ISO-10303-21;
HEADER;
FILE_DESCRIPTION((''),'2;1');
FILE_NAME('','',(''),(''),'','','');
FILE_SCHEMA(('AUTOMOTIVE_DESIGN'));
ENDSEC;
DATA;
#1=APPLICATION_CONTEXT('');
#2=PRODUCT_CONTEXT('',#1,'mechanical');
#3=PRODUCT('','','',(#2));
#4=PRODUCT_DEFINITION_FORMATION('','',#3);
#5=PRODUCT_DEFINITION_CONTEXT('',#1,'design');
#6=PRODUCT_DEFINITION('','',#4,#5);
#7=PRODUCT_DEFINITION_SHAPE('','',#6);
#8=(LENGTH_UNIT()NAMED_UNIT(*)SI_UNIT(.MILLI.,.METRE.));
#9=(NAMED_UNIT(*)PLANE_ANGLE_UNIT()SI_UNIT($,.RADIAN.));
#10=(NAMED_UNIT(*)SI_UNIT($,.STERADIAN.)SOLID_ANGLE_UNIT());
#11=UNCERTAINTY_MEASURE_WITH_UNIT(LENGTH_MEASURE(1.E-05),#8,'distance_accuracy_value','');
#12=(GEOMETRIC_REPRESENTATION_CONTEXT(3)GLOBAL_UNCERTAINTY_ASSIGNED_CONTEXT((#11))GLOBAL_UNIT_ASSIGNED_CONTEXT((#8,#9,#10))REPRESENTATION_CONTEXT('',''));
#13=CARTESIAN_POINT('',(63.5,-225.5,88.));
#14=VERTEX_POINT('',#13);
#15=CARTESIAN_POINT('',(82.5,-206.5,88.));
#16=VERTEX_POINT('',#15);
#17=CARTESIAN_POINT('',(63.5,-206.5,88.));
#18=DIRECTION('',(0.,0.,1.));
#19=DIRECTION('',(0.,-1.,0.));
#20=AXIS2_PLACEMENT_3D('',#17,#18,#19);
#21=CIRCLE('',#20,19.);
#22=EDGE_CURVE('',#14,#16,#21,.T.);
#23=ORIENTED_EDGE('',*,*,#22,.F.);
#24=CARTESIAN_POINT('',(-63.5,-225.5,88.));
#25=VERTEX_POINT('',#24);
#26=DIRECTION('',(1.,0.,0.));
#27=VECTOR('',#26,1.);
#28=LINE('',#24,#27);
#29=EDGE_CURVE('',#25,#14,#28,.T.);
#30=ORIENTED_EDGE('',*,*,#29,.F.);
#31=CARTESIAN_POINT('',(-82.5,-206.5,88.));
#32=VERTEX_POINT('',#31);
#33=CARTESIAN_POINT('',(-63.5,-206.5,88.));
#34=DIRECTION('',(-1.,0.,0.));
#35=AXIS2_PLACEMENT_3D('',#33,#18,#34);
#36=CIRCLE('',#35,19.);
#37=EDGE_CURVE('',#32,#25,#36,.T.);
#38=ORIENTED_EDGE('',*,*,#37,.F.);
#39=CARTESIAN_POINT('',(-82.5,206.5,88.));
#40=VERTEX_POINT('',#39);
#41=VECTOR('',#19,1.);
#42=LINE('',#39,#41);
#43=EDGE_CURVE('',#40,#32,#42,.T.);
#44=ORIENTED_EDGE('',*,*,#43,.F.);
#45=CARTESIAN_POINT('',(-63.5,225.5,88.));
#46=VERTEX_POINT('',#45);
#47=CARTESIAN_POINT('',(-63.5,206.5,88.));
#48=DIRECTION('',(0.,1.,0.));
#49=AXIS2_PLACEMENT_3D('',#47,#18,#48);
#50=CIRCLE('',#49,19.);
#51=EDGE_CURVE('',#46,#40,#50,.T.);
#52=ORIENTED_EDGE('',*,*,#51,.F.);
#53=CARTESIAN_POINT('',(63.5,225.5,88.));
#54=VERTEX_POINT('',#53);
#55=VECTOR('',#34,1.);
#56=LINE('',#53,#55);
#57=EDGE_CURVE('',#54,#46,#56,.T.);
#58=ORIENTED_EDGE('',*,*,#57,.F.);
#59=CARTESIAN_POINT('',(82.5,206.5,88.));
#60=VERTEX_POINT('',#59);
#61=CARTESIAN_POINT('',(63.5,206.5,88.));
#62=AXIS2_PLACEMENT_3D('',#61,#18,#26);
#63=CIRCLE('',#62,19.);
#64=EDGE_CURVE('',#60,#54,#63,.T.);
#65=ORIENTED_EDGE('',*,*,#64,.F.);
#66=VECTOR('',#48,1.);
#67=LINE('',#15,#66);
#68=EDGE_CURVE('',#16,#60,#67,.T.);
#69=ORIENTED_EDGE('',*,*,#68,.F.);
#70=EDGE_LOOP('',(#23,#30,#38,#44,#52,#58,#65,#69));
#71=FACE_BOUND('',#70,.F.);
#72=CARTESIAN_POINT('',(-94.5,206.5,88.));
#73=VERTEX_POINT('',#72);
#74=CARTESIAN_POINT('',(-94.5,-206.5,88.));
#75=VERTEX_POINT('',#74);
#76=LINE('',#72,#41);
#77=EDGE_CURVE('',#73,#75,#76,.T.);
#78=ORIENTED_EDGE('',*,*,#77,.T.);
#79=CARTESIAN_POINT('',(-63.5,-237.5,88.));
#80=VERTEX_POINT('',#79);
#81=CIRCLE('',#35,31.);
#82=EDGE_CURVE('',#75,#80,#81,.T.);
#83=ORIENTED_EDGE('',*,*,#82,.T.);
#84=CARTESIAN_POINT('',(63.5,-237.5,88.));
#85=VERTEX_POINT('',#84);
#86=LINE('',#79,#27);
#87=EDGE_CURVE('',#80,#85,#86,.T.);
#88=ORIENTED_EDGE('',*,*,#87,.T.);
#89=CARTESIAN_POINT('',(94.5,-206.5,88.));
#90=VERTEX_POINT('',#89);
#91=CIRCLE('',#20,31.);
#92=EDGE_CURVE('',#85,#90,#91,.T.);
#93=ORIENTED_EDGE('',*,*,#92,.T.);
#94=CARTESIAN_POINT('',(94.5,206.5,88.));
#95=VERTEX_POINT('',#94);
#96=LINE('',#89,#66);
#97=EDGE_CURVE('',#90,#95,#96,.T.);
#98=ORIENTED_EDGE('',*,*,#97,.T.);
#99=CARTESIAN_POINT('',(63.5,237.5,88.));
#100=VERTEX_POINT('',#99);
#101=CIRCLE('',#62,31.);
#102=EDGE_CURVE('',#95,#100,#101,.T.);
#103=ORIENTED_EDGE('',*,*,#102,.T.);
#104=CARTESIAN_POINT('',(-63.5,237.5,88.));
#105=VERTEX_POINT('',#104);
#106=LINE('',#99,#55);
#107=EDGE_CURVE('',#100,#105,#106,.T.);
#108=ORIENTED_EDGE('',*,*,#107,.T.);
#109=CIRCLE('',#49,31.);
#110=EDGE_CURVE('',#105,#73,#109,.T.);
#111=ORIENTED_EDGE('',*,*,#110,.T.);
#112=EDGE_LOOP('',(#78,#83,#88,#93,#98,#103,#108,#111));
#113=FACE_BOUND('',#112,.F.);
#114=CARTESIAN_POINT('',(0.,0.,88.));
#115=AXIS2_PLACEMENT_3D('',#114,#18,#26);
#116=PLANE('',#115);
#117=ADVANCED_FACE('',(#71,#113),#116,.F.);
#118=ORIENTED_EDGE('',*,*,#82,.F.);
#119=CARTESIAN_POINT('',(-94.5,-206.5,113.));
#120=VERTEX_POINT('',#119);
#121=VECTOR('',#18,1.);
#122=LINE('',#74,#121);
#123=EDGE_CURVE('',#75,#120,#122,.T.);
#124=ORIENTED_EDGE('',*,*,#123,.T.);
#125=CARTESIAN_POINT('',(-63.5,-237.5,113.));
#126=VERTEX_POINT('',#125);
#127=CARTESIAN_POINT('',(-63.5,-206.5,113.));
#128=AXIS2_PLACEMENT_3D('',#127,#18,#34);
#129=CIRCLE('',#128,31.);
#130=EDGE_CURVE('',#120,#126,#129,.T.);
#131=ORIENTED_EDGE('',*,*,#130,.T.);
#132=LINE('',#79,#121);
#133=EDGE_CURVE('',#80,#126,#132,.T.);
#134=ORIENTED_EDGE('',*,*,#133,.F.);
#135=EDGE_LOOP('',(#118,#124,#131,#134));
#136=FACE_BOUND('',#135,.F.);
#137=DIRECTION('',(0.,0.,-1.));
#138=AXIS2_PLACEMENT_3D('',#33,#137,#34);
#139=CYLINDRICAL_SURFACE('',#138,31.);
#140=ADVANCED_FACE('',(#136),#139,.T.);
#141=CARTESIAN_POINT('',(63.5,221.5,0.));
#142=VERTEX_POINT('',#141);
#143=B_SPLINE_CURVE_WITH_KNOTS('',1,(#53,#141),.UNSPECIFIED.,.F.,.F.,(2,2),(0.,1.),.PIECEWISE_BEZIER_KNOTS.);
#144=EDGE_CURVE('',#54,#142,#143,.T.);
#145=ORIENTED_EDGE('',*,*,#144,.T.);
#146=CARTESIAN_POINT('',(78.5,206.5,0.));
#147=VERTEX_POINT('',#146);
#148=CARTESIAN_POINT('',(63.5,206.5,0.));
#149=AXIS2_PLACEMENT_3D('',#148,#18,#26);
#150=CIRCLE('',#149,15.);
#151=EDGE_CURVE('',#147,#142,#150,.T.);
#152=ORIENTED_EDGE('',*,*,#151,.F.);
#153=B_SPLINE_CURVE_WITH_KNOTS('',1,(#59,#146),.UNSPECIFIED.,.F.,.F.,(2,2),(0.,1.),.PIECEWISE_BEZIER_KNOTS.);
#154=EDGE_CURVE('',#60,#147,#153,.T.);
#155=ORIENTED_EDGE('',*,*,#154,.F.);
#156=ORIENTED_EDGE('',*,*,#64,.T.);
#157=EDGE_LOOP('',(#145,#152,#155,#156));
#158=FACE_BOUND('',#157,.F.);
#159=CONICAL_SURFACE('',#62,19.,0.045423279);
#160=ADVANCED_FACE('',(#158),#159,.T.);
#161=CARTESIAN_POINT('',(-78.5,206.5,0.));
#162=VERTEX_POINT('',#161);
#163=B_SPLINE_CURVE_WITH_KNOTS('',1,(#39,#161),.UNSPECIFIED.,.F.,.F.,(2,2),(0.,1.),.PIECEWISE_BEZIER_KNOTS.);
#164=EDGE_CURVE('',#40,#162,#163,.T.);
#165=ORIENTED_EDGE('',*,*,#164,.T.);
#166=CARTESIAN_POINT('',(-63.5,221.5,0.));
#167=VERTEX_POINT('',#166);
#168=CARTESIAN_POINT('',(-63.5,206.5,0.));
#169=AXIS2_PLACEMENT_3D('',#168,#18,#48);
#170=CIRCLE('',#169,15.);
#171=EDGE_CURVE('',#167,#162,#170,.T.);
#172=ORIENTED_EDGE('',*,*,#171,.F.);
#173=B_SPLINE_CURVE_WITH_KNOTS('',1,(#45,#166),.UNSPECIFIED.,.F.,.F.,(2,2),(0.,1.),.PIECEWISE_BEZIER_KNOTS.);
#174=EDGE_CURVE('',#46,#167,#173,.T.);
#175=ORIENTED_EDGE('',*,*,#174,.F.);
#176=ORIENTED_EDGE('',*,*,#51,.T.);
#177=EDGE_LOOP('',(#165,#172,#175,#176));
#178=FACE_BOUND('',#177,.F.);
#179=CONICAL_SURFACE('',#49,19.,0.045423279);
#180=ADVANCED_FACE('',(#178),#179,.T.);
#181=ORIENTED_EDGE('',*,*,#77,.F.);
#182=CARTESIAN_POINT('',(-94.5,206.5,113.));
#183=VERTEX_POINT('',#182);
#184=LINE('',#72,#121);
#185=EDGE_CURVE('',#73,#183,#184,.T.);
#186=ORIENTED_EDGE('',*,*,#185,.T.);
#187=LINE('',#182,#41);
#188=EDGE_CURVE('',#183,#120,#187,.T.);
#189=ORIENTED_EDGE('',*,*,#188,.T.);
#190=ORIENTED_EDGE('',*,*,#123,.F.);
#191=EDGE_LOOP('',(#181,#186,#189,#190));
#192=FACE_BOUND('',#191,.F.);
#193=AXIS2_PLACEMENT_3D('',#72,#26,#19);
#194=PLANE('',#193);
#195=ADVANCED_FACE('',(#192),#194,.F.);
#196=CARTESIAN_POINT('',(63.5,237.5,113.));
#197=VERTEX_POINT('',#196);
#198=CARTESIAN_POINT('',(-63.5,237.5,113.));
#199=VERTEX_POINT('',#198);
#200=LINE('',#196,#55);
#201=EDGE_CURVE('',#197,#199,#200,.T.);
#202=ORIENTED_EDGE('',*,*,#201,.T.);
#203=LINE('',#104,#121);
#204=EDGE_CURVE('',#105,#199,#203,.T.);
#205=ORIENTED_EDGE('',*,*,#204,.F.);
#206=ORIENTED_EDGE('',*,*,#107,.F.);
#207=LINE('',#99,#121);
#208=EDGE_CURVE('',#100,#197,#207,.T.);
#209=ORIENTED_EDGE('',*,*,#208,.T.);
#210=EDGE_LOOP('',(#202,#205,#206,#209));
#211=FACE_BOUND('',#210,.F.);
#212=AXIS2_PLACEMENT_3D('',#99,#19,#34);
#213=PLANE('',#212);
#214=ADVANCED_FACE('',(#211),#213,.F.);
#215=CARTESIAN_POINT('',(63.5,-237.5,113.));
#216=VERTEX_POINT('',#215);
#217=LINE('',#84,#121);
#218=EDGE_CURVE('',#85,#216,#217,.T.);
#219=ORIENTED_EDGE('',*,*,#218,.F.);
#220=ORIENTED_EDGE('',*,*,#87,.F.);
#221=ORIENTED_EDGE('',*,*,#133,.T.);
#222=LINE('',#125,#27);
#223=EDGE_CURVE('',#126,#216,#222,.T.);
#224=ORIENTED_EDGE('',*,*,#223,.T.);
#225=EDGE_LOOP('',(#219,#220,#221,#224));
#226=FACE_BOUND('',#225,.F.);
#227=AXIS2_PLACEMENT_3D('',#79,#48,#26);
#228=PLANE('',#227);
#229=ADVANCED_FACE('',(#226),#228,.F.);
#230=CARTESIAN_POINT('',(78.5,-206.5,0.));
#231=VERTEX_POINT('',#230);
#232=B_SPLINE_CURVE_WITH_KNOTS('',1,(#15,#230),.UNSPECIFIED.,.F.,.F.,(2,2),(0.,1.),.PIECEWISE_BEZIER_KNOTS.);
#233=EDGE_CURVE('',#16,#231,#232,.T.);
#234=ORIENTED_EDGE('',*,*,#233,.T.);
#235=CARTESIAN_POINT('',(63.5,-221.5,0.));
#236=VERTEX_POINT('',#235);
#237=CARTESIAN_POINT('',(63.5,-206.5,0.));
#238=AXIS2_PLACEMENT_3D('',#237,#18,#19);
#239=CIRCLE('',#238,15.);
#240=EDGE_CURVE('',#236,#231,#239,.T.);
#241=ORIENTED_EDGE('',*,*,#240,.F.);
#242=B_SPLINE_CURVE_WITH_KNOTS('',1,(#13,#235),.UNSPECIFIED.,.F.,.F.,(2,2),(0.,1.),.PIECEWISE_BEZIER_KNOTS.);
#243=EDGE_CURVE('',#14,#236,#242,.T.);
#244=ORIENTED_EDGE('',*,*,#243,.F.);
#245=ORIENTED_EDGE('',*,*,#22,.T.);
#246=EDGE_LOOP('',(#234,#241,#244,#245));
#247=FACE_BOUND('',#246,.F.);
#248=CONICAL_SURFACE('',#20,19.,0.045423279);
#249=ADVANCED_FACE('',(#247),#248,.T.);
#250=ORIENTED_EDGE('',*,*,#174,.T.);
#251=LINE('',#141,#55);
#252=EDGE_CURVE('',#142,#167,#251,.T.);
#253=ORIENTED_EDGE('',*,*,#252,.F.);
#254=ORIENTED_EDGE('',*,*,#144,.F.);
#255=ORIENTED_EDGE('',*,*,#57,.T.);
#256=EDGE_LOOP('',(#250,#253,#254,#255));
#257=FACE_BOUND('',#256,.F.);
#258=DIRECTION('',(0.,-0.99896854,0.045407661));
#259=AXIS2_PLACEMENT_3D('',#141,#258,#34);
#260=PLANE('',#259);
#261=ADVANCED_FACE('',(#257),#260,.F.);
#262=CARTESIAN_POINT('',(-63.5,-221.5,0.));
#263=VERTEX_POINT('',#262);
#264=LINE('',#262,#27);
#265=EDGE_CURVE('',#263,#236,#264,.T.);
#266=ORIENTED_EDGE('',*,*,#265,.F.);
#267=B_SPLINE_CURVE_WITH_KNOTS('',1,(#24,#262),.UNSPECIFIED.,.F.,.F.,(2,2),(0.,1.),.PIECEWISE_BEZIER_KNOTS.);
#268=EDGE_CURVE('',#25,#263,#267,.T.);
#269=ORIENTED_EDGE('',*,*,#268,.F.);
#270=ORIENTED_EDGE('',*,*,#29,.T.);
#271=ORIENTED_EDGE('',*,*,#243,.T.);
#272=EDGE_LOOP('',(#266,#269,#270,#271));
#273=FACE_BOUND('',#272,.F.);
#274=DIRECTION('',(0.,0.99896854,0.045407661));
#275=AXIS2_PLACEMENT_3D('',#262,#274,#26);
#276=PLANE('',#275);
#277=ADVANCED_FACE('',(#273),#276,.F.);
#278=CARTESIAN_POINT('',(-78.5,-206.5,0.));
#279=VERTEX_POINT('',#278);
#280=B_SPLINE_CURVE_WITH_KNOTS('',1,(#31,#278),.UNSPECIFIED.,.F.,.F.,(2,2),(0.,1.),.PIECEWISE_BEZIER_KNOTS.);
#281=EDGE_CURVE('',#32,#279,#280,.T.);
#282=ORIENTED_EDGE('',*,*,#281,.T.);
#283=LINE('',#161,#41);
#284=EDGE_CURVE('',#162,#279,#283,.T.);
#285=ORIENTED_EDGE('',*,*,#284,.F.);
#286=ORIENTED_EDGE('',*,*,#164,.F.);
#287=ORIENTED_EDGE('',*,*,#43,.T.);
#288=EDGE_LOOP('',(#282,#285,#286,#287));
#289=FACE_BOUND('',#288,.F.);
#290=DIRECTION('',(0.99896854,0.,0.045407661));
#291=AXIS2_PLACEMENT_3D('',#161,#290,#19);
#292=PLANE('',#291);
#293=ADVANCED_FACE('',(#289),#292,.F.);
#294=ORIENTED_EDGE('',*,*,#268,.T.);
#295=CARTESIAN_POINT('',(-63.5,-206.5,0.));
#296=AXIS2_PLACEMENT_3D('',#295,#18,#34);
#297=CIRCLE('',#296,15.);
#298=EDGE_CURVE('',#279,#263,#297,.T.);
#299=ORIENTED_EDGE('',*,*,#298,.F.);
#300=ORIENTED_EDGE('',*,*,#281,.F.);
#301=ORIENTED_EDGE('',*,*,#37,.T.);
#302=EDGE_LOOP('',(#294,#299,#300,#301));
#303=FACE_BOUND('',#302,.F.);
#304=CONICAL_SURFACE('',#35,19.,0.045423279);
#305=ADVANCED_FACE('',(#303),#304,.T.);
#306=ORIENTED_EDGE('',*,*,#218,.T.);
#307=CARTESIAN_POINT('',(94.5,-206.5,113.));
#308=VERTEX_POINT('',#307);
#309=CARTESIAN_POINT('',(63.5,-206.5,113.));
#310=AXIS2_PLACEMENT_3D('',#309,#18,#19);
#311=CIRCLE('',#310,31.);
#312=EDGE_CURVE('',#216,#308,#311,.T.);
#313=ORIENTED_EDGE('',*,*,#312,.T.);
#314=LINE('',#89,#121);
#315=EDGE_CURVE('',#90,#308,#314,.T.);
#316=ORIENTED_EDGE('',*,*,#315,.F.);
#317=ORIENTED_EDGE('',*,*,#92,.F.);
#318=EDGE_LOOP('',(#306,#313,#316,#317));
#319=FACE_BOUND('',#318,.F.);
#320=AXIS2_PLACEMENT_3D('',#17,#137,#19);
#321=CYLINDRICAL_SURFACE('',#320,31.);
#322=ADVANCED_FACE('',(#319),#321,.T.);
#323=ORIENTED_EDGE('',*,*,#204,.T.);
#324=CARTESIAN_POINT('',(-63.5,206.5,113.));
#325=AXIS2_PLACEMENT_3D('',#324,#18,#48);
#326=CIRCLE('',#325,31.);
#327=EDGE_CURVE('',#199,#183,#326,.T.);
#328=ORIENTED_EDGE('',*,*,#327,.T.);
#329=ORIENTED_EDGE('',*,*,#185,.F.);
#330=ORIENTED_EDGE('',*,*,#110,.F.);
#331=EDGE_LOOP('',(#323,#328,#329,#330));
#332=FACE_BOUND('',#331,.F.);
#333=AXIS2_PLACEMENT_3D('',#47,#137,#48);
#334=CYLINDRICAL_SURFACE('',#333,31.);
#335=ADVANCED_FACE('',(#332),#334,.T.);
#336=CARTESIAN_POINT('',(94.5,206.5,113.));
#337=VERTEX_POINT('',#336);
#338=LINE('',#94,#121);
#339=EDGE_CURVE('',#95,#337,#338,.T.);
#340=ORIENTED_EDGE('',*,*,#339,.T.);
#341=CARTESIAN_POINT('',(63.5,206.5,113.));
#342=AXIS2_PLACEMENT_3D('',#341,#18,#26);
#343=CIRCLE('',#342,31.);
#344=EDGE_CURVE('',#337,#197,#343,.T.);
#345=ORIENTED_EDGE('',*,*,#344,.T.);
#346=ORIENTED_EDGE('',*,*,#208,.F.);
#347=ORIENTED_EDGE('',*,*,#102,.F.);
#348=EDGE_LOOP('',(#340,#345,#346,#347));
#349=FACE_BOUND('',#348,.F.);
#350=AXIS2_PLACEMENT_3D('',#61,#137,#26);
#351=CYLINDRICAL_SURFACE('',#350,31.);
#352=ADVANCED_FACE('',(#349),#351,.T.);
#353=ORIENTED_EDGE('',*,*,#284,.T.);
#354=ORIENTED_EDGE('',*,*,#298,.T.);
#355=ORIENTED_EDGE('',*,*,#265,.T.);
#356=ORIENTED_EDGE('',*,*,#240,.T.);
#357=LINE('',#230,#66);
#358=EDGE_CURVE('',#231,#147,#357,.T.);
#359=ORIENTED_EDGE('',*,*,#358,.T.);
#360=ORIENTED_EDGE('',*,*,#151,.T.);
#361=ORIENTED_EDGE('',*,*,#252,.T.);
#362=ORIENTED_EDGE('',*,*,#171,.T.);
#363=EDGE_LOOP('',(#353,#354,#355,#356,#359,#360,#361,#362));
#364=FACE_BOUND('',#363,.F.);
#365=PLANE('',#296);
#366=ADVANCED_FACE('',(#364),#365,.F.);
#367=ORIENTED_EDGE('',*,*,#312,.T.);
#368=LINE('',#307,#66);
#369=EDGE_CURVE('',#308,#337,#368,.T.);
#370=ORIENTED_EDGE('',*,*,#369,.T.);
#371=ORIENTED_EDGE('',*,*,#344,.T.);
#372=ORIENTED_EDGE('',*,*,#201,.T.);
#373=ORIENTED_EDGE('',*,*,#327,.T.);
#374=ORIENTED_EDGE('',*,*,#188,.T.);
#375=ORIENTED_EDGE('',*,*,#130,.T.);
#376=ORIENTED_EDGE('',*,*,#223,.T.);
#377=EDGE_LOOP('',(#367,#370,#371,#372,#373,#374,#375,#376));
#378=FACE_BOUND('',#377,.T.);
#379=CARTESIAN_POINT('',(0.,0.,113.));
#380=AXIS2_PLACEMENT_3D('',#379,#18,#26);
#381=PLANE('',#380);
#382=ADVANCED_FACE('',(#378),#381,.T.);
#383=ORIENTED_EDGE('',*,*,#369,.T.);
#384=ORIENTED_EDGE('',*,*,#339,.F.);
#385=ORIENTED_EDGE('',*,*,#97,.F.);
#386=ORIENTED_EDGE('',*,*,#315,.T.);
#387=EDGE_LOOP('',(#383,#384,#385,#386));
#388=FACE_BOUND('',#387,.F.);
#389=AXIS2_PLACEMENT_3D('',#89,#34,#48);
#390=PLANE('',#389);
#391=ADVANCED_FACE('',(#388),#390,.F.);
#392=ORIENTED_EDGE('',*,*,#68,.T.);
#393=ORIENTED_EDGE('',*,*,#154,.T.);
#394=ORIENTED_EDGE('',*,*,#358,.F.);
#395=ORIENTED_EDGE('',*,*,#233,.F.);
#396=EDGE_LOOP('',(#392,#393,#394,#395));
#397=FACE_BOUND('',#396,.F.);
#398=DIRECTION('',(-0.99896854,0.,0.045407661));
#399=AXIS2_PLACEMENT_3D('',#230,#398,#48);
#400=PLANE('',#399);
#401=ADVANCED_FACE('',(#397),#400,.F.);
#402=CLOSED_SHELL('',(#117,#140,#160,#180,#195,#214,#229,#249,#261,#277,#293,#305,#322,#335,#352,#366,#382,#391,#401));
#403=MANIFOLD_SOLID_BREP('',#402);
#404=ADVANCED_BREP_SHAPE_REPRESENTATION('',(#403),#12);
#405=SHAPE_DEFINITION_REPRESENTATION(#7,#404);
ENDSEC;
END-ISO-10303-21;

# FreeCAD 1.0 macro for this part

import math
import FreeCAD as App
import Part
import Sketcher
from FreeCAD import Vector

doc = App.newDocument("Part")
body = doc.addObject("PartDesign::Body", "Body")

# Sketch on XY plane
sketch1 = doc.addObject("Sketcher::SketchObject", "Sketch")
body.addObject(sketch1)
sketch1.AttachmentSupport = (doc.XY_Plane, [""])
sketch1.MapMode = "FlatFace"
sketch1.AttachmentOffset = App.Placement(Vector(0, 0, 88), App.Rotation())
sketch1.addGeometry([
    Part.LineSegment(Vector(-82, 206, 0), Vector(-82, -206, 0)),  # 0
    Part.ArcOfCircle(Part.Circle(Vector(-64, -206, 0), Vector(0, 0, 1), 19), math.radians(180), math.radians(270)),  # 1
    Part.LineSegment(Vector(-64, -226, 0), Vector(64, -226, 0)),  # 2
    Part.ArcOfCircle(Part.Circle(Vector(64, -206, 0), Vector(0, 0, 1), 19), math.radians(-90), math.radians(0)),  # 3
    Part.LineSegment(Vector(82, -206, 0), Vector(82, 206, 0)),  # 4
    Part.ArcOfCircle(Part.Circle(Vector(64, 206, 0), Vector(0, 0, 1), 19), math.radians(0), math.radians(90)),  # 5
    Part.LineSegment(Vector(64, 226, 0), Vector(-64, 226, 0)),  # 6
    Part.ArcOfCircle(Part.Circle(Vector(-64, 206, 0), Vector(0, 0, 1), 19), math.radians(90), math.radians(180)),  # 7
], False)
sketch1.addConstraint([
    Sketcher.Constraint("Tangent", 0, 2, 1, 1),
    Sketcher.Constraint("Tangent", 1, 2, 2, 1),
    Sketcher.Constraint("Tangent", 2, 2, 3, 1),
    Sketcher.Constraint("Tangent", 3, 2, 4, 1),
    Sketcher.Constraint("Tangent", 4, 2, 5, 1),
    Sketcher.Constraint("Tangent", 5, 2, 6, 1),
    Sketcher.Constraint("Tangent", 6, 2, 7, 1),
    Sketcher.Constraint("Tangent", 7, 2, 0, 1),
    Sketcher.Constraint("Vertical", 0),
    Sketcher.Constraint("Horizontal", 2),
    Sketcher.Constraint("Vertical", 4),
    Sketcher.Constraint("Horizontal", 6),
    Sketcher.Constraint("Equal", 1, 3),
    Sketcher.Constraint("Equal", 3, 5),
    Sketcher.Constraint("Equal", 5, 7),
    Sketcher.Constraint("Symmetric", 1, 3, 5, 3, -1, 1),
    Sketcher.Constraint("Radius", 1, 19.0),
    Sketcher.Constraint("DistanceX", 2, 1, 2, 2, 127.0),
    Sketcher.Constraint("DistanceY", 0, 2, 0, 1, 413.0),
])

# Sketch on XY plane
sketch2 = doc.addObject("Sketcher::SketchObject", "Sketch001")
body.addObject(sketch2)
sketch2.AttachmentSupport = (doc.XY_Plane, [""])
sketch2.MapMode = "FlatFace"
sketch2.addGeometry([
    Part.ArcOfCircle(Part.Circle(Vector(64, 206, 0), Vector(0, 0, 1), 15), math.radians(0), math.radians(90)),  # 0
    Part.LineSegment(Vector(64, 222, 0), Vector(-64, 222, 0)),  # 1
    Part.ArcOfCircle(Part.Circle(Vector(-64, 206, 0), Vector(0, 0, 1), 15), math.radians(90), math.radians(180)),  # 2
    Part.LineSegment(Vector(-78, 206, 0), Vector(-78, -206, 0)),  # 3
    Part.ArcOfCircle(Part.Circle(Vector(-64, -206, 0), Vector(0, 0, 1), 15), math.radians(180), math.radians(270)),  # 4
    Part.LineSegment(Vector(-64, -222, 0), Vector(64, -222, 0)),  # 5
    Part.ArcOfCircle(Part.Circle(Vector(64, -206, 0), Vector(0, 0, 1), 15), math.radians(-90), math.radians(0)),  # 6
    Part.LineSegment(Vector(78, -206, 0), Vector(78, 206, 0)),  # 7
], False)
sketch2.addConstraint([
    Sketcher.Constraint("Tangent", 0, 2, 1, 1),
    Sketcher.Constraint("Tangent", 1, 2, 2, 1),
    Sketcher.Constraint("Tangent", 2, 2, 3, 1),
    Sketcher.Constraint("Tangent", 3, 2, 4, 1),
    Sketcher.Constraint("Tangent", 4, 2, 5, 1),
    Sketcher.Constraint("Tangent", 5, 2, 6, 1),
    Sketcher.Constraint("Tangent", 6, 2, 7, 1),
    Sketcher.Constraint("Tangent", 7, 2, 0, 1),
    Sketcher.Constraint("Horizontal", 1),
    Sketcher.Constraint("Vertical", 3),
    Sketcher.Constraint("Horizontal", 5),
    Sketcher.Constraint("Vertical", 7),
    Sketcher.Constraint("Equal", 0, 2),
    Sketcher.Constraint("Equal", 2, 4),
    Sketcher.Constraint("Equal", 4, 6),
    Sketcher.Constraint("Symmetric", 0, 3, 4, 3, -1, 1),
    Sketcher.Constraint("Radius", 0, 15.0),
    Sketcher.Constraint("DistanceX", 1, 2, 1, 1, 127.0),
    Sketcher.Constraint("DistanceY", 3, 2, 3, 1, 413.0),
])

additiveloft = doc.addObject("PartDesign::AdditiveLoft", "AdditiveLoft")
body.addObject(additiveloft)
additiveloft.Profile = sketch1
additiveloft.Sections = [sketch2]

# Sketch on XY plane
sketch3 = doc.addObject("Sketcher::SketchObject", "Sketch002")
body.addObject(sketch3)
sketch3.AttachmentSupport = (doc.XY_Plane, [""])
sketch3.MapMode = "FlatFace"
sketch3.AttachmentOffset = App.Placement(Vector(0, 0, 88), App.Rotation())
sketch3.addGeometry([
    Part.LineSegment(Vector(64, 238, 0), Vector(-64, 238, 0)),  # 0
    Part.ArcOfCircle(Part.Circle(Vector(-64, 206, 0), Vector(0, 0, 1), 31), math.radians(90), math.radians(180)),  # 1
    Part.LineSegment(Vector(-94, 206, 0), Vector(-94, -206, 0)),  # 2
    Part.ArcOfCircle(Part.Circle(Vector(-64, -206, 0), Vector(0, 0, 1), 31), math.radians(180), math.radians(270)),  # 3
    Part.LineSegment(Vector(-64, -238, 0), Vector(64, -238, 0)),  # 4
    Part.ArcOfCircle(Part.Circle(Vector(64, -206, 0), Vector(0, 0, 1), 31), math.radians(-90), math.radians(0)),  # 5
    Part.LineSegment(Vector(94, -206, 0), Vector(94, 206, 0)),  # 6
    Part.ArcOfCircle(Part.Circle(Vector(64, 206, 0), Vector(0, 0, 1), 31), math.radians(0), math.radians(90)),  # 7
], False)
sketch3.addConstraint([
    Sketcher.Constraint("Tangent", 0, 2, 1, 1),
    Sketcher.Constraint("Tangent", 1, 2, 2, 1),
    Sketcher.Constraint("Tangent", 2, 2, 3, 1),
    Sketcher.Constraint("Tangent", 3, 2, 4, 1),
    Sketcher.Constraint("Tangent", 4, 2, 5, 1),
    Sketcher.Constraint("Tangent", 5, 2, 6, 1),
    Sketcher.Constraint("Tangent", 6, 2, 7, 1),
    Sketcher.Constraint("Tangent", 7, 2, 0, 1),
    Sketcher.Constraint("Horizontal", 0),
    Sketcher.Constraint("Vertical", 2),
    Sketcher.Constraint("Horizontal", 4),
    Sketcher.Constraint("Vertical", 6),
    Sketcher.Constraint("Equal", 1, 3),
    Sketcher.Constraint("Equal", 3, 5),
    Sketcher.Constraint("Equal", 5, 7),
    Sketcher.Constraint("Symmetric", 1, 3, 5, 3, -1, 1),
    Sketcher.Constraint("Radius", 1, 31.0),
    Sketcher.Constraint("DistanceX", 0, 2, 0, 1, 127.0),
    Sketcher.Constraint("DistanceY", 2, 2, 2, 1, 413.0),
])
pad1 = doc.addObject("PartDesign::Pad", "Pad")
body.addObject(pad1)
pad1.Profile = sketch3
pad1.Length = 25

doc.recompute()
